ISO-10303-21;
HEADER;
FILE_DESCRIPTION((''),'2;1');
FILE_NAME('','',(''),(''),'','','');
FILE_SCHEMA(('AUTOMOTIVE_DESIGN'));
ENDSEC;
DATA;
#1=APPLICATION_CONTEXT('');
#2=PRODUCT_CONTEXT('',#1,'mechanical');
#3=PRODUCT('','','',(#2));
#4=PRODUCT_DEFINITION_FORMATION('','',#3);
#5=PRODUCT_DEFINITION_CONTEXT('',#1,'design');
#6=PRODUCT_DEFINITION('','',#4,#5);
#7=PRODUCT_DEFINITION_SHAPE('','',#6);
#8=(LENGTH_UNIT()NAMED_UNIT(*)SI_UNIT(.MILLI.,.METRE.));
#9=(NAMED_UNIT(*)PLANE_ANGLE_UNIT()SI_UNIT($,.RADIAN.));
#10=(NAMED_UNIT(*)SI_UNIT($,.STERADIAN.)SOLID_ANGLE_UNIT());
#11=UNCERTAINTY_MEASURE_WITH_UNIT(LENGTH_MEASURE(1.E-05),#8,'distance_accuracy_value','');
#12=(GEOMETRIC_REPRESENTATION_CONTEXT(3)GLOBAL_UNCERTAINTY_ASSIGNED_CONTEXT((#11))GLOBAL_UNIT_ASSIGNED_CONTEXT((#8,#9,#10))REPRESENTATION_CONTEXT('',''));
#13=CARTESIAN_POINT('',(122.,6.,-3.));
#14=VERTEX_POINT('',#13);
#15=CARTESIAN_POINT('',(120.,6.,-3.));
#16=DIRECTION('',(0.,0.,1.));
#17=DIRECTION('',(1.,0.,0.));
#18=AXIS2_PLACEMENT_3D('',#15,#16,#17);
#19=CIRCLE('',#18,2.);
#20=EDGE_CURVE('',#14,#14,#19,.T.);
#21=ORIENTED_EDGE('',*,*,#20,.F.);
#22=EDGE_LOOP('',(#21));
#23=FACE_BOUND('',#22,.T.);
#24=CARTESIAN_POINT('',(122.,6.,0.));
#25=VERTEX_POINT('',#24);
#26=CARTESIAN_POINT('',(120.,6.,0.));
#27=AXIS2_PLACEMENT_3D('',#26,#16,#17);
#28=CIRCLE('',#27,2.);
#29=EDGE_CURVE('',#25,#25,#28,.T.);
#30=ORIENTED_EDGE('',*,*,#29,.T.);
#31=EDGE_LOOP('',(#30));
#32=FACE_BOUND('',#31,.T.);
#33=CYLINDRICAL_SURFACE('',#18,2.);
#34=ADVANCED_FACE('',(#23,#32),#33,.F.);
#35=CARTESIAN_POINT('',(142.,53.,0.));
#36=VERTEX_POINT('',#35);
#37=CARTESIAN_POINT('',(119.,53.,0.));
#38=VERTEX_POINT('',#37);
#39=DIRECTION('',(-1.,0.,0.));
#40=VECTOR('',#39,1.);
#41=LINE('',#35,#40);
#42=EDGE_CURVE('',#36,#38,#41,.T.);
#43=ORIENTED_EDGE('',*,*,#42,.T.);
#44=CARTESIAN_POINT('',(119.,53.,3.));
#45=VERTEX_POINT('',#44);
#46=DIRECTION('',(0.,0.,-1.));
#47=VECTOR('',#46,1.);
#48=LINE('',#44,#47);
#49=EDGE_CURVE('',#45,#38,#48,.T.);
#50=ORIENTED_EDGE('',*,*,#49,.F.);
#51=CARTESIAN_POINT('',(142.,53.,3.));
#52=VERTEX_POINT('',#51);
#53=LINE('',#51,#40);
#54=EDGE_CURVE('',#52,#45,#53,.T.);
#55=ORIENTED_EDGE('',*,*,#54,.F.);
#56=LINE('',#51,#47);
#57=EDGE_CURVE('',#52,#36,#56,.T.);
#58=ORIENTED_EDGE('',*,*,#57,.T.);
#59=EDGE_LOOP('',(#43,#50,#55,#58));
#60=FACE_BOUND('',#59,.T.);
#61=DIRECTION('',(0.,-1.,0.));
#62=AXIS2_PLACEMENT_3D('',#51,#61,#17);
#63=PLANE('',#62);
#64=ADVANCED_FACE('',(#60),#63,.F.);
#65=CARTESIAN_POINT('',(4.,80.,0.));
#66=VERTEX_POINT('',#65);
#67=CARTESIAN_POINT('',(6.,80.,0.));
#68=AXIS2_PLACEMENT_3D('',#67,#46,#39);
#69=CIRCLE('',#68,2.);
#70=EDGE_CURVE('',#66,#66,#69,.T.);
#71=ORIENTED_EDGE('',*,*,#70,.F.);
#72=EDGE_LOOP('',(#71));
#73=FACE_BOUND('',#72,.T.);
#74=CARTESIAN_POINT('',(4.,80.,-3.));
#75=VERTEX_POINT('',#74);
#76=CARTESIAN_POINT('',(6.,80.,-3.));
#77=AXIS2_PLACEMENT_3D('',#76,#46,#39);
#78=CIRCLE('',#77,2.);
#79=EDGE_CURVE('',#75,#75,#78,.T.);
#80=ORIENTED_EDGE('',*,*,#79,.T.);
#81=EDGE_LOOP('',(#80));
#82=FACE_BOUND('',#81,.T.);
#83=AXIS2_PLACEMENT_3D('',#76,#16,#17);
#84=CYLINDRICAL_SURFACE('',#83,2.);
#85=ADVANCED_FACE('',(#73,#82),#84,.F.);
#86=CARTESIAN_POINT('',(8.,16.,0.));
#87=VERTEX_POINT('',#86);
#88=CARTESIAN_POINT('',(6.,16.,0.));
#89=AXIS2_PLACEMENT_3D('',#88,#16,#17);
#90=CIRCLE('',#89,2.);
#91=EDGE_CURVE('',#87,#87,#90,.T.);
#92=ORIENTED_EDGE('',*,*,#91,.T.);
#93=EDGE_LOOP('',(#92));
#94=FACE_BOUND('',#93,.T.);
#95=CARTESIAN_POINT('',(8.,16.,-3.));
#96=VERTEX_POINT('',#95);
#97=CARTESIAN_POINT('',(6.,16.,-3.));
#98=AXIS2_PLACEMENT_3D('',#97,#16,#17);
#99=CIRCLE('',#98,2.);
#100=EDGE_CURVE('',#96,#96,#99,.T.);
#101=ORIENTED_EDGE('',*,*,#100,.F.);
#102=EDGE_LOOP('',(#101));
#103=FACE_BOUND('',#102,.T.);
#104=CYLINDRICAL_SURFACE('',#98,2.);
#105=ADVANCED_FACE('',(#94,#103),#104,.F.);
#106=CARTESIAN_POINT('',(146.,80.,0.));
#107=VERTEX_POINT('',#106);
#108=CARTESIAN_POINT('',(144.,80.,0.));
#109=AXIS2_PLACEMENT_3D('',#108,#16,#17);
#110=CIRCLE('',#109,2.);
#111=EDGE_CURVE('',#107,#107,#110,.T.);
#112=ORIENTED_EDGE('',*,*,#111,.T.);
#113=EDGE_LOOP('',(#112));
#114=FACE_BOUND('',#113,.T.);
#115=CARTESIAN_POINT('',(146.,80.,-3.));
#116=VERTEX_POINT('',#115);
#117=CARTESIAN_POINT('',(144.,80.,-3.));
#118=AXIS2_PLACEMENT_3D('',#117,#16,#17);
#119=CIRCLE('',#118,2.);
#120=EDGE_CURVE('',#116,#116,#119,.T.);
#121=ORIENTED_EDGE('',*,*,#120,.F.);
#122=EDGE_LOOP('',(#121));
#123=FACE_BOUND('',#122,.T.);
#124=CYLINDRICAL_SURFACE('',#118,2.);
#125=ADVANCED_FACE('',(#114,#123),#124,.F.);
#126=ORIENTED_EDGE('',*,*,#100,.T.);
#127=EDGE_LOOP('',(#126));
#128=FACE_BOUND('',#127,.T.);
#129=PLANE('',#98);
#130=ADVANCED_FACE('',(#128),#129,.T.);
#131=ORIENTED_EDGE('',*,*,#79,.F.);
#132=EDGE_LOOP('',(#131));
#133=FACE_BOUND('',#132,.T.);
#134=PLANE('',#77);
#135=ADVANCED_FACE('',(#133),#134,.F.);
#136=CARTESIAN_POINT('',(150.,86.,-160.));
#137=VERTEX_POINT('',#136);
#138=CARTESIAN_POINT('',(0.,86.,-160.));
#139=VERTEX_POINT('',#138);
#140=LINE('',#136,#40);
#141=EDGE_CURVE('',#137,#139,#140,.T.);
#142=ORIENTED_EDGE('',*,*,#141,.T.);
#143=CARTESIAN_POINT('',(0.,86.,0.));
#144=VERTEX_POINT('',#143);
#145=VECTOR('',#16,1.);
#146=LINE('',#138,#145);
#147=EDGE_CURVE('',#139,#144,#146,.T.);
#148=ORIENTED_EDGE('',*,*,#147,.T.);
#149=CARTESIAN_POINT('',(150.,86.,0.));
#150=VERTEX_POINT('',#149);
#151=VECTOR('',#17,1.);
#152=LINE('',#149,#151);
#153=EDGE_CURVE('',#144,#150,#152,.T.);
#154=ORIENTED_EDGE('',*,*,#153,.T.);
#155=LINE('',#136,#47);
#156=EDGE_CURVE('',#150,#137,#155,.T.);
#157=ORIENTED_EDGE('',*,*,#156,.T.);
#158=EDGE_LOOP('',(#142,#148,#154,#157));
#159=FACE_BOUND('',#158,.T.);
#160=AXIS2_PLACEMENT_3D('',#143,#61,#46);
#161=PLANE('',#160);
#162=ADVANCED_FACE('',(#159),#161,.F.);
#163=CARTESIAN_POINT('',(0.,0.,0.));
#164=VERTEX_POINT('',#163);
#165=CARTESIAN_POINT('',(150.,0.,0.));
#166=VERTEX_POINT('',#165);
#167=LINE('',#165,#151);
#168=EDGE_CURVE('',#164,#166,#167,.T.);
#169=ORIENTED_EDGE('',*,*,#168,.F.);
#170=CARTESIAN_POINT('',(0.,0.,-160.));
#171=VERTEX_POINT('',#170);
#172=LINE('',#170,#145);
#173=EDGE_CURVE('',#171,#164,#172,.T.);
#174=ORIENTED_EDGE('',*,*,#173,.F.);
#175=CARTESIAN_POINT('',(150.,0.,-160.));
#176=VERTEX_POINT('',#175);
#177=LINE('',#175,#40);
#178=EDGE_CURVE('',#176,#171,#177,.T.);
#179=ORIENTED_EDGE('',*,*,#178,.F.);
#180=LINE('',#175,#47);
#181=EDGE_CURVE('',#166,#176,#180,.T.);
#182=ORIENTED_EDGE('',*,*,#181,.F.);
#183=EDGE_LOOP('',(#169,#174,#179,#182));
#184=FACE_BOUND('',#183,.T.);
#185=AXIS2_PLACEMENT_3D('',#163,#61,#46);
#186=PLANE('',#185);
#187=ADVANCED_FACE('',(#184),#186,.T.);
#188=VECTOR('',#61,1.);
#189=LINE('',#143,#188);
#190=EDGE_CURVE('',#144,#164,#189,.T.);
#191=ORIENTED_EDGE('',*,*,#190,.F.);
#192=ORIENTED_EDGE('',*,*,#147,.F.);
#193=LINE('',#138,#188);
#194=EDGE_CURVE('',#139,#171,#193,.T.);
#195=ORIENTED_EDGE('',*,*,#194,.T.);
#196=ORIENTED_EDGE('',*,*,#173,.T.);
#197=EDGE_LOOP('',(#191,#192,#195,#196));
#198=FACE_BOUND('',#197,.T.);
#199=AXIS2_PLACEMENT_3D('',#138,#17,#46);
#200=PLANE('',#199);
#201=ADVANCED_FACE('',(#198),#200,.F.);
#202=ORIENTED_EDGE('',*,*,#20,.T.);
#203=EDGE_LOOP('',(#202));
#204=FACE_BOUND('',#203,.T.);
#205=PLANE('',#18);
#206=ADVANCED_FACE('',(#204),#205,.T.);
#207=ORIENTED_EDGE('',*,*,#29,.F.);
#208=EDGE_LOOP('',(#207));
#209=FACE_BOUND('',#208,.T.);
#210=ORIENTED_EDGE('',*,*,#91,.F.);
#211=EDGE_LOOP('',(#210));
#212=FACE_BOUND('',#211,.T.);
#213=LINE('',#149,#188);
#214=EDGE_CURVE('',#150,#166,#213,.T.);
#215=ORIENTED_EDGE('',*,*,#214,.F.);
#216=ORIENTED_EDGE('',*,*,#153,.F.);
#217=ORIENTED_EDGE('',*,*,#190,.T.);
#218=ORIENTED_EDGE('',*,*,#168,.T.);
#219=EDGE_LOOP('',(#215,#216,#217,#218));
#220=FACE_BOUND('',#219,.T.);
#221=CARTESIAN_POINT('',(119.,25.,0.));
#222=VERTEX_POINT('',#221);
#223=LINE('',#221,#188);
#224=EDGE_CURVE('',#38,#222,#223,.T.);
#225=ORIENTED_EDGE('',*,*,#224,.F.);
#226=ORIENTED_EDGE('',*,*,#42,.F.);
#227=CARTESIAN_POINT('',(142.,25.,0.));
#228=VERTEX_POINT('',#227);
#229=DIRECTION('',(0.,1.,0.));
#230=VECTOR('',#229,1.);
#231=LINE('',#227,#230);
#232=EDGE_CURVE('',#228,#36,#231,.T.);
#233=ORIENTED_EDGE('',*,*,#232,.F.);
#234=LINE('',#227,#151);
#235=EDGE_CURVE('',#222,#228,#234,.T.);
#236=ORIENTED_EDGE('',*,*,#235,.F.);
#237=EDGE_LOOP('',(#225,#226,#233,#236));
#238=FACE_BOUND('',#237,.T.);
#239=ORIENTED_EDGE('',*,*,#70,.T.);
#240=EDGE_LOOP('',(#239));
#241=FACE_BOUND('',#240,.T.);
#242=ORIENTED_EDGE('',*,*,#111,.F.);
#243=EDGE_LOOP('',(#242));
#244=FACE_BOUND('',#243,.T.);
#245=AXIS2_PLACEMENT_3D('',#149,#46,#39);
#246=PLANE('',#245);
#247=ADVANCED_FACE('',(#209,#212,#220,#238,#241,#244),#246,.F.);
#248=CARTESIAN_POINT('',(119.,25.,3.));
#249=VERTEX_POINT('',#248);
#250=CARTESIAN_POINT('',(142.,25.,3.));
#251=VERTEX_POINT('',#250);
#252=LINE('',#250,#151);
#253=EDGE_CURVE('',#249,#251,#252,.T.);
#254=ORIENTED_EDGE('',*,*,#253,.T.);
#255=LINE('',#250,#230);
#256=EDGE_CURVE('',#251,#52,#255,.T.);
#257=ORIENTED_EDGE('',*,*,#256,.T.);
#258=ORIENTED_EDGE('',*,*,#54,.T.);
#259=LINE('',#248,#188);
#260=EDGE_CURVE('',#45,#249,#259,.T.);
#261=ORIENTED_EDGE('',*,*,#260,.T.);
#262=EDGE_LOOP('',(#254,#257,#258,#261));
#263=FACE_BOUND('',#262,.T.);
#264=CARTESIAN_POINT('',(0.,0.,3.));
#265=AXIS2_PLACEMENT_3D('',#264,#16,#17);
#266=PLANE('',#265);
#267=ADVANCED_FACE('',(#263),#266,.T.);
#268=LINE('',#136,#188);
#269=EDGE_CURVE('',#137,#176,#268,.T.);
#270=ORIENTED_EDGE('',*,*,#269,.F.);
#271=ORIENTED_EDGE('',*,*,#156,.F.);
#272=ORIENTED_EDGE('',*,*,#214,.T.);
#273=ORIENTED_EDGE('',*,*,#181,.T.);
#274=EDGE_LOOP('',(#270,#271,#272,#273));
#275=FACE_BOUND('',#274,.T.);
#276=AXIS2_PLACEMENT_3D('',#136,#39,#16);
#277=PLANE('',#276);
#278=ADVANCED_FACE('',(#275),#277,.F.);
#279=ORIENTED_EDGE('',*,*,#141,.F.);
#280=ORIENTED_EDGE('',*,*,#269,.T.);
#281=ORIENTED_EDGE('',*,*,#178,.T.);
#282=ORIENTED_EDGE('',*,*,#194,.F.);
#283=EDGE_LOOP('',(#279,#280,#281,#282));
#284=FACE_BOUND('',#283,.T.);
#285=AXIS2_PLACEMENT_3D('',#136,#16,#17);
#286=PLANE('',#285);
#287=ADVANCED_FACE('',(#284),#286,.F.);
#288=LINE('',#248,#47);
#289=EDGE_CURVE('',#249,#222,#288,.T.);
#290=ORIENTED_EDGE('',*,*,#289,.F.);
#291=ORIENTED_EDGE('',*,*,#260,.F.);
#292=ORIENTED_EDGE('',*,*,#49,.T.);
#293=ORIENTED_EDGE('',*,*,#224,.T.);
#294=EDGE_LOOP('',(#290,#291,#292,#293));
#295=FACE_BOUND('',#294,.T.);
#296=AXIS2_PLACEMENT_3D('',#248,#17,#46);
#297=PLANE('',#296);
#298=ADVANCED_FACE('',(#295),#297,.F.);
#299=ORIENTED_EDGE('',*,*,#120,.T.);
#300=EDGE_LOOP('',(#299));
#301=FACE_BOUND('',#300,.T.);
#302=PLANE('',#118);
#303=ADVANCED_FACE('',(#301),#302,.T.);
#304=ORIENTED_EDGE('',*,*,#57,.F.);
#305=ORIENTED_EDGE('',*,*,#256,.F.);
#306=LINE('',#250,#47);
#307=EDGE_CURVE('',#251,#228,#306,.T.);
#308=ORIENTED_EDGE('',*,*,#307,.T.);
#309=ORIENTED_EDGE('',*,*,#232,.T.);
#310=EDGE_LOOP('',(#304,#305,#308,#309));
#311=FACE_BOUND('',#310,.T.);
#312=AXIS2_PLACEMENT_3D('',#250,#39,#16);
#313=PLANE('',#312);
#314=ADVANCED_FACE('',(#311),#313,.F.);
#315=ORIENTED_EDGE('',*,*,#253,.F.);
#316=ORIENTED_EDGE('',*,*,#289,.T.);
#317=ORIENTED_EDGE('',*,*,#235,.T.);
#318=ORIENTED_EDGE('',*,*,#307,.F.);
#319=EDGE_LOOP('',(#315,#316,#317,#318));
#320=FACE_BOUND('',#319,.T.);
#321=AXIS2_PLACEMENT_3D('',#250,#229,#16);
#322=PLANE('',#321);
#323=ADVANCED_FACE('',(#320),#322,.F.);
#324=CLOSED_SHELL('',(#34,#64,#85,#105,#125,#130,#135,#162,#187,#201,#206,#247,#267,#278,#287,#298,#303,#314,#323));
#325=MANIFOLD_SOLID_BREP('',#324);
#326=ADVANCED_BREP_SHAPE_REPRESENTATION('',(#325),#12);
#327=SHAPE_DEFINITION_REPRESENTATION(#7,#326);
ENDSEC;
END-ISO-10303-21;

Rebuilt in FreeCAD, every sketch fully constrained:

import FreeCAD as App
import Part
import Sketcher

V = App.Vector


def add_polygon(sketch, points):
    """Adds a closed chain of lines whose ends are joined by coincident constraints."""
    first, n = sketch.GeometryCount, len(points)
    for a, b in zip(points, points[1:] + points[:1]):
        sketch.addGeometry(Part.LineSegment(App.Vector(*a, 0), App.Vector(*b, 0)), False)
    for i in range(n):
        sketch.addConstraint(Sketcher.Constraint("Coincident", first + i, 2, first + (i + 1) % n, 1))

doc = App.newDocument("Part")
body = doc.addObject("PartDesign::Body", "Body")

sketch1 = body.newObject("Sketcher::SketchObject", "Sketch")
sketch1.AttachmentSupport = (doc.getObject("XZ_Plane"), [""])
sketch1.MapMode = "FlatFace"
add_polygon(sketch1, [(0, -160), (0, 0), (150, 0), (150, -160)])
sketch1.addConstraint([
    Sketcher.Constraint("Vertical", 0),
    Sketcher.Constraint("Horizontal", 1),
    Sketcher.Constraint("Vertical", 2),
    Sketcher.Constraint("Horizontal", 3),
    Sketcher.Constraint("Coincident", 0, 2, -1, 1),
    Sketcher.Constraint("DistanceX", 1, 1, 1, 2, 150.0),
    Sketcher.Constraint("DistanceY", 0, 1, 0, 2, 160.0),
])
pad1 = body.newObject("PartDesign::Pad", "Pad")
pad1.Profile = sketch1
pad1.Length = 86
pad1.Reversed = True

sketch2 = body.newObject("Sketcher::SketchObject", "Sketch001")
sketch2.AttachmentSupport = (doc.getObject("XY_Plane"), [""])
sketch2.MapMode = "FlatFace"
add_polygon(sketch2, [(119, 53), (119, 25), (142, 25), (142, 53)])
sketch2.addConstraint([
    Sketcher.Constraint("Vertical", 0),
    Sketcher.Constraint("Horizontal", 1),
    Sketcher.Constraint("Vertical", 2),
    Sketcher.Constraint("Horizontal", 3),
    Sketcher.Constraint("DistanceX", 1, 1, 1, 2, 23.0),
    Sketcher.Constraint("DistanceY", 0, 2, 0, 1, 28.0),
    Sketcher.Constraint("DistanceX", -1, 1, 0, 2, 119.0),
    Sketcher.Constraint("DistanceY", -1, 1, 0, 2, 25.0),
])
pad2 = body.newObject("PartDesign::Pad", "Pad001")
pad2.Profile = sketch2
pad2.Length = 3

sketch3 = body.newObject("Sketcher::SketchObject", "Sketch002")
sketch3.AttachmentSupport = (doc.getObject("XY_Plane"), [""])
sketch3.MapMode = "FlatFace"
sketch3.addGeometry([
    Part.Circle(V(144, 80, 0), V(0, 0, 1), 2),
    Part.Circle(V(6, 80, 0), V(0, 0, 1), 2),
    Part.Circle(V(6, 16, 0), V(0, 0, 1), 2),
    Part.Circle(V(120, 6, 0), V(0, 0, 1), 2),
], False)
sketch3.addConstraint([
    Sketcher.Constraint("Equal", 0, 1),
    Sketcher.Constraint("Equal", 1, 2),
    Sketcher.Constraint("Equal", 2, 3),
    Sketcher.Constraint("Horizontal", 0, 3, 1, 3),
    Sketcher.Constraint("Vertical", 1, 3, 2, 3),
    Sketcher.Constraint("Diameter", 0, 4.0),
    Sketcher.Constraint("DistanceX", -1, 1, 0, 3, 144.0),
    Sketcher.Constraint("DistanceY", -1, 1, 0, 3, 80.0),
    Sketcher.Constraint("DistanceX", -1, 1, 1, 3, 6.0),
    Sketcher.Constraint("DistanceY", -1, 1, 2, 3, 16.0),
    Sketcher.Constraint("DistanceX", -1, 1, 3, 3, 120.0),
    Sketcher.Constraint("DistanceY", -1, 1, 3, 3, 6.0),
])
pocket1 = body.newObject("PartDesign::Pocket", "Pocket")
pocket1.Profile = sketch3
pocket1.Length = 3

doc.recompute()
